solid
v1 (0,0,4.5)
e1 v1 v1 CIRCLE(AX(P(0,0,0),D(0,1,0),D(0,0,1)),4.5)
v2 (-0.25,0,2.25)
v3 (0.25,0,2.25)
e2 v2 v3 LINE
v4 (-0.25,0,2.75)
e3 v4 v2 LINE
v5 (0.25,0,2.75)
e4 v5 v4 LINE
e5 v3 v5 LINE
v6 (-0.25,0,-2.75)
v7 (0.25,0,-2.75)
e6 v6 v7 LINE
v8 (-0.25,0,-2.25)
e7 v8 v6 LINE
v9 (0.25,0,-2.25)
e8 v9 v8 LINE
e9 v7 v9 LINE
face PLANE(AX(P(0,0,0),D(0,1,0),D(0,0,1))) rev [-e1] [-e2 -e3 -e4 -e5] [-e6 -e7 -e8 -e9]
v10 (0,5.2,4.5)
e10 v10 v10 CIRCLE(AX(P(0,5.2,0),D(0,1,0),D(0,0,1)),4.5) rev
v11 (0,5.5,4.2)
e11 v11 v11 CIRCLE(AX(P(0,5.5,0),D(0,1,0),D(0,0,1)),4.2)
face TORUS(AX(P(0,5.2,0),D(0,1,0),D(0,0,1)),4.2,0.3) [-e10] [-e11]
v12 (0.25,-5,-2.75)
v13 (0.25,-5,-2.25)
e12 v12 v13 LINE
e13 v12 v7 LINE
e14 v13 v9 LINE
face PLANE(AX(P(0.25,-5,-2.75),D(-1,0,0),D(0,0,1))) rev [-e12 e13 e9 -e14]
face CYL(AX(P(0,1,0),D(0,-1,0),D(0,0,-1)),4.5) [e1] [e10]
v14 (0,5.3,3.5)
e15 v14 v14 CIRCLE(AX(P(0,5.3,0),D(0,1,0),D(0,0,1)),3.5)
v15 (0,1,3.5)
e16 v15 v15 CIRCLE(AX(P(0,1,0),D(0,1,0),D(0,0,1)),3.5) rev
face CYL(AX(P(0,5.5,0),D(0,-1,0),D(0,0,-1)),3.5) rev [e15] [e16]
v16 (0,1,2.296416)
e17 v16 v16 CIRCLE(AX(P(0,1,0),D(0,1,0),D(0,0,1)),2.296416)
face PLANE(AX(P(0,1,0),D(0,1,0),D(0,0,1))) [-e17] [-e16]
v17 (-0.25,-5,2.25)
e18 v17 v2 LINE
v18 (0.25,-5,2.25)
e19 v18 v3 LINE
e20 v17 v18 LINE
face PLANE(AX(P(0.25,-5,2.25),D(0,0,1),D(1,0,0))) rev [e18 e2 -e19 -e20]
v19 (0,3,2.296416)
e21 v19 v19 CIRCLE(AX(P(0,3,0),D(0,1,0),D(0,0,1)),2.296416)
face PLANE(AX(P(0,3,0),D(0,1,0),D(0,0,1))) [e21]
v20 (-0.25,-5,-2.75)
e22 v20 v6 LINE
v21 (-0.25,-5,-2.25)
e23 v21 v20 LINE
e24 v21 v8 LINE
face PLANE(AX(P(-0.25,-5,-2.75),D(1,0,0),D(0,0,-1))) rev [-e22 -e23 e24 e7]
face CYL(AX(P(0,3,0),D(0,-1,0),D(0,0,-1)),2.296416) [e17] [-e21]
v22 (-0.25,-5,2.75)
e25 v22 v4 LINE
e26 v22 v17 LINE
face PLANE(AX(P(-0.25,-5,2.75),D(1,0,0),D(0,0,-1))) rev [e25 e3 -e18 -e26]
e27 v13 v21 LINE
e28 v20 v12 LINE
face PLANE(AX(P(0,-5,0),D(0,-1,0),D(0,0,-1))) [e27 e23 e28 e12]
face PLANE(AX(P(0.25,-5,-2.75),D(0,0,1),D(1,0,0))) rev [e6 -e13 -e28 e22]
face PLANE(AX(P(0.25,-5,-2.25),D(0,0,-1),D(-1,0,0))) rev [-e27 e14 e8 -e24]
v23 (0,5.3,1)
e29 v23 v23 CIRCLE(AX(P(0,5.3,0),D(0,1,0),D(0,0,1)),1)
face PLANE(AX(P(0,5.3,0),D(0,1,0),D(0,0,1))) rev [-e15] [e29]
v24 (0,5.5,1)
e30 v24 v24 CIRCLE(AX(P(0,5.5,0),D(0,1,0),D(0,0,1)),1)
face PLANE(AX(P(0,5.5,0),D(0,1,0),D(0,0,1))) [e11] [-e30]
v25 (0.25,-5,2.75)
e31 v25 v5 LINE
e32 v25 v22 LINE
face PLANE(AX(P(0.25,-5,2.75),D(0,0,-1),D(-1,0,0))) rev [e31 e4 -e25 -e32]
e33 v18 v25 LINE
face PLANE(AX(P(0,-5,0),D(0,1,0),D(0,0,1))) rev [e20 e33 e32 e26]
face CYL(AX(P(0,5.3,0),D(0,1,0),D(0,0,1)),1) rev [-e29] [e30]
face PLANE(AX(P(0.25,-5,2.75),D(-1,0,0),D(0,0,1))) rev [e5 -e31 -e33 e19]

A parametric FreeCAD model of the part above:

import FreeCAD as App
import Part
import Sketcher

V = App.Vector
Q = App.Units.Quantity


def edges_at(feature, points):
    """Names of the edges that pass closest to the given points."""
    edges = feature.Shape.Edges
    near = lambda p: min(range(len(edges)), key=lambda i: edges[i].distToShape(Part.Vertex(*p))[0])
    return sorted({f"Edge{near(p) + 1}" for p in points})

doc = App.newDocument("Part")
params = doc.addObject("Spreadsheet::Sheet", "Params")
for row, (alias, value) in enumerate([
    ("sketch1_diameter", "9 mm"),
    ("pad1_length", "1 mm"),
    ("sketch2_diameter", "9 mm"),
    ("sketch2_diameter2", "7 mm"),
    ("pad2_length", "4.5 mm"),
    ("pad3_length", "2 mm"),
    ("sketch4_diameter", "9 mm"),
    ("sketch4_diameter2", "2 mm"),
    ("pad4_length", "0.2 mm"),
    ("sketch5_width", "0.5 mm"),
    ("pad5_length", "5 mm"),
    ("fillet_radius", "0.3 mm"),
], start=1):
    params.set(f"A{row}", alias)
    params.set(f"B{row}", "=" + value)
    params.setAlias(f"B{row}", alias)

body = doc.addObject("PartDesign::Body", "Body")

sketch1 = body.newObject("Sketcher::SketchObject", "Sketch")
sketch1.AttachmentSupport = (doc.getObject("XZ_Plane"), [""])
sketch1.MapMode = "FlatFace"
sketch1.addGeometry(Part.Circle(V(0, 0, 0), V(0, 0, 1), 4.5), False)
sketch1.addConstraint([
    Sketcher.Constraint("Coincident", 0, 3, -1, 1),
    Sketcher.Constraint("Diameter", 0, Q("9 mm")),
])
sketch1.setExpression("Constraints[1]", "Params.sketch1_diameter")
pad1 = body.newObject("PartDesign::Pad", "Pad")
pad1.Profile = sketch1
pad1.setExpression("Length", "Params.pad1_length")
pad1.Reversed = True

sketch2 = body.newObject("Sketcher::SketchObject", "Sketch001")
sketch2.AttachmentSupport = (doc.getObject("XZ_Plane"), [""])
sketch2.MapMode = "FlatFace"
sketch2.AttachmentOffset = App.Placement(V(0, 0, -1), App.Rotation())
sketch2.addGeometry([
    Part.Circle(V(0, 0, 0), V(0, 0, 1), 4.5),
    Part.Circle(V(0, 0, 0), V(0, 0, 1), 3.5),
], False)
sketch2.addConstraint([
    Sketcher.Constraint("Coincident", 0, 3, -1, 1),
    Sketcher.Constraint("Coincident", 1, 3, -1, 1),
    Sketcher.Constraint("Diameter", 0, Q("9 mm")),
    Sketcher.Constraint("Diameter", 1, Q("7 mm")),
])
sketch2.setExpression("Constraints[2]", "Params.sketch2_diameter")
sketch2.setExpression("Constraints[3]", "Params.sketch2_diameter2")
pad2 = body.newObject("PartDesign::Pad", "Pad001")
pad2.Profile = sketch2
pad2.setExpression("Length", "Params.pad2_length")
pad2.Reversed = True

sketch3 = body.newObject("Sketcher::SketchObject", "Sketch002")
sketch3.AttachmentSupport = (doc.getObject("XZ_Plane"), [""])
sketch3.MapMode = "FlatFace"
sketch3.AttachmentOffset = App.Placement(V(0, 0, -1), App.Rotation())
sketch3.addGeometry(Part.Circle(V(0, 0, 0), V(0, 0, 1), 2.3), False)
sketch3.addConstraint([
    Sketcher.Constraint("Coincident", 0, 3, -1, 1),
    Sketcher.Constraint("Diameter", 0, Q("4.592833 mm")),
])
pad3 = body.newObject("PartDesign::Pad", "Pad002")
pad3.Profile = sketch3
pad3.setExpression("Length", "Params.pad3_length")
pad3.Reversed = True

sketch4 = body.newObject("Sketcher::SketchObject", "Sketch003")
sketch4.AttachmentSupport = (doc.getObject("XZ_Plane"), [""])
sketch4.MapMode = "FlatFace"
sketch4.AttachmentOffset = App.Placement(V(0, 0, -5.3), App.Rotation())
sketch4.addGeometry([
    Part.Circle(V(0, 0, 0), V(0, 0, 1), 4.5),
    Part.Circle(V(0, 0, 0), V(0, 0, 1), 1),
], False)
sketch4.addConstraint([
    Sketcher.Constraint("Coincident", 0, 3, -1, 1),
    Sketcher.Constraint("Coincident", 1, 3, -1, 1),
    Sketcher.Constraint("Diameter", 0, Q("9 mm")),
    Sketcher.Constraint("Diameter", 1, Q("2 mm")),
])
sketch4.setExpression("Constraints[2]", "Params.sketch4_diameter")
sketch4.setExpression("Constraints[3]", "Params.sketch4_diameter2")
pad4 = body.newObject("PartDesign::Pad", "Pad003")
pad4.Profile = sketch4
pad4.setExpression("Length", "Params.pad4_length")
pad4.Reversed = True

sketch5 = body.newObject("Sketcher::SketchObject", "Sketch004")
sketch5.AttachmentSupport = (doc.getObject("XZ_Plane"), [""])
sketch5.MapMode = "FlatFace"
sketch5.addGeometry([
    Part.LineSegment(V(-0.2, -2.2, 0), V(-0.2, -2.8, 0)),
    Part.LineSegment(V(-0.2, -2.8, 0), V(0.2, -2.8, 0)),
    Part.LineSegment(V(0.2, -2.8, 0), V(0.2, -2.2, 0)),
    Part.LineSegment(V(0.2, -2.2, 0), V(-0.2, -2.2, 0)),
    Part.LineSegment(V(-0.2, 2.8, 0), V(-0.2, 2.2, 0)),
    Part.LineSegment(V(-0.2, 2.2, 0), V(0.2, 2.2, 0)),
    Part.LineSegment(V(0.2, 2.2, 0), V(0.2, 2.8, 0)),
    Part.LineSegment(V(0.2, 2.8, 0), V(-0.2, 2.8, 0)),
], False)
sketch5.addConstraint([
    Sketcher.Constraint("Coincident", 0, 2, 1, 1),
    Sketcher.Constraint("Coincident", 1, 2, 2, 1),
    Sketcher.Constraint("Coincident", 2, 2, 3, 1),
    Sketcher.Constraint("Coincident", 3, 2, 0, 1),
    Sketcher.Constraint("Coincident", 4, 2, 5, 1),
    Sketcher.Constraint("Coincident", 5, 2, 6, 1),
    Sketcher.Constraint("Coincident", 6, 2, 7, 1),
    Sketcher.Constraint("Coincident", 7, 2, 4, 1),
    Sketcher.Constraint("Vertical", 0),
    Sketcher.Constraint("Horizontal", 1),
    Sketcher.Constraint("Vertical", 2),
    Sketcher.Constraint("Horizontal", 3),
    Sketcher.Constraint("Vertical", 4),
    Sketcher.Constraint("Horizontal", 5),
    Sketcher.Constraint("Vertical", 6),
    Sketcher.Constraint("Horizontal", 7),
    Sketcher.Constraint("Symmetric", 2, 2, 4, 2, -1, 1),
    Sketcher.Constraint("Symmetric", 0, 2, 6, 2, -1, 1),
    Sketcher.Constraint("Vertical", 3, 2, 4, 2),
    Sketcher.Constraint("Equal", 7, 0),
    Sketcher.Constraint("DistanceX", 1, 1, 1, 2, Q("0.5 mm")),
    Sketcher.Constraint("DistanceY", 0, 2, 4, 2, Q("5 mm")),
])
sketch5.setExpression("Constraints[20]", "Params.sketch5_width")
pad5 = body.newObject("PartDesign::Pad", "Pad004")
pad5.Profile = sketch5
pad5.setExpression("Length", "Params.pad5_length")
doc.recompute()

fillet = body.newObject("PartDesign::Fillet", "Fillet")
fillet.Base = (pad5, edges_at(pad5, [(0, 5.5, -4.5)]))
fillet.setExpression("Radius", "Params.fillet_radius")

doc.recompute()
